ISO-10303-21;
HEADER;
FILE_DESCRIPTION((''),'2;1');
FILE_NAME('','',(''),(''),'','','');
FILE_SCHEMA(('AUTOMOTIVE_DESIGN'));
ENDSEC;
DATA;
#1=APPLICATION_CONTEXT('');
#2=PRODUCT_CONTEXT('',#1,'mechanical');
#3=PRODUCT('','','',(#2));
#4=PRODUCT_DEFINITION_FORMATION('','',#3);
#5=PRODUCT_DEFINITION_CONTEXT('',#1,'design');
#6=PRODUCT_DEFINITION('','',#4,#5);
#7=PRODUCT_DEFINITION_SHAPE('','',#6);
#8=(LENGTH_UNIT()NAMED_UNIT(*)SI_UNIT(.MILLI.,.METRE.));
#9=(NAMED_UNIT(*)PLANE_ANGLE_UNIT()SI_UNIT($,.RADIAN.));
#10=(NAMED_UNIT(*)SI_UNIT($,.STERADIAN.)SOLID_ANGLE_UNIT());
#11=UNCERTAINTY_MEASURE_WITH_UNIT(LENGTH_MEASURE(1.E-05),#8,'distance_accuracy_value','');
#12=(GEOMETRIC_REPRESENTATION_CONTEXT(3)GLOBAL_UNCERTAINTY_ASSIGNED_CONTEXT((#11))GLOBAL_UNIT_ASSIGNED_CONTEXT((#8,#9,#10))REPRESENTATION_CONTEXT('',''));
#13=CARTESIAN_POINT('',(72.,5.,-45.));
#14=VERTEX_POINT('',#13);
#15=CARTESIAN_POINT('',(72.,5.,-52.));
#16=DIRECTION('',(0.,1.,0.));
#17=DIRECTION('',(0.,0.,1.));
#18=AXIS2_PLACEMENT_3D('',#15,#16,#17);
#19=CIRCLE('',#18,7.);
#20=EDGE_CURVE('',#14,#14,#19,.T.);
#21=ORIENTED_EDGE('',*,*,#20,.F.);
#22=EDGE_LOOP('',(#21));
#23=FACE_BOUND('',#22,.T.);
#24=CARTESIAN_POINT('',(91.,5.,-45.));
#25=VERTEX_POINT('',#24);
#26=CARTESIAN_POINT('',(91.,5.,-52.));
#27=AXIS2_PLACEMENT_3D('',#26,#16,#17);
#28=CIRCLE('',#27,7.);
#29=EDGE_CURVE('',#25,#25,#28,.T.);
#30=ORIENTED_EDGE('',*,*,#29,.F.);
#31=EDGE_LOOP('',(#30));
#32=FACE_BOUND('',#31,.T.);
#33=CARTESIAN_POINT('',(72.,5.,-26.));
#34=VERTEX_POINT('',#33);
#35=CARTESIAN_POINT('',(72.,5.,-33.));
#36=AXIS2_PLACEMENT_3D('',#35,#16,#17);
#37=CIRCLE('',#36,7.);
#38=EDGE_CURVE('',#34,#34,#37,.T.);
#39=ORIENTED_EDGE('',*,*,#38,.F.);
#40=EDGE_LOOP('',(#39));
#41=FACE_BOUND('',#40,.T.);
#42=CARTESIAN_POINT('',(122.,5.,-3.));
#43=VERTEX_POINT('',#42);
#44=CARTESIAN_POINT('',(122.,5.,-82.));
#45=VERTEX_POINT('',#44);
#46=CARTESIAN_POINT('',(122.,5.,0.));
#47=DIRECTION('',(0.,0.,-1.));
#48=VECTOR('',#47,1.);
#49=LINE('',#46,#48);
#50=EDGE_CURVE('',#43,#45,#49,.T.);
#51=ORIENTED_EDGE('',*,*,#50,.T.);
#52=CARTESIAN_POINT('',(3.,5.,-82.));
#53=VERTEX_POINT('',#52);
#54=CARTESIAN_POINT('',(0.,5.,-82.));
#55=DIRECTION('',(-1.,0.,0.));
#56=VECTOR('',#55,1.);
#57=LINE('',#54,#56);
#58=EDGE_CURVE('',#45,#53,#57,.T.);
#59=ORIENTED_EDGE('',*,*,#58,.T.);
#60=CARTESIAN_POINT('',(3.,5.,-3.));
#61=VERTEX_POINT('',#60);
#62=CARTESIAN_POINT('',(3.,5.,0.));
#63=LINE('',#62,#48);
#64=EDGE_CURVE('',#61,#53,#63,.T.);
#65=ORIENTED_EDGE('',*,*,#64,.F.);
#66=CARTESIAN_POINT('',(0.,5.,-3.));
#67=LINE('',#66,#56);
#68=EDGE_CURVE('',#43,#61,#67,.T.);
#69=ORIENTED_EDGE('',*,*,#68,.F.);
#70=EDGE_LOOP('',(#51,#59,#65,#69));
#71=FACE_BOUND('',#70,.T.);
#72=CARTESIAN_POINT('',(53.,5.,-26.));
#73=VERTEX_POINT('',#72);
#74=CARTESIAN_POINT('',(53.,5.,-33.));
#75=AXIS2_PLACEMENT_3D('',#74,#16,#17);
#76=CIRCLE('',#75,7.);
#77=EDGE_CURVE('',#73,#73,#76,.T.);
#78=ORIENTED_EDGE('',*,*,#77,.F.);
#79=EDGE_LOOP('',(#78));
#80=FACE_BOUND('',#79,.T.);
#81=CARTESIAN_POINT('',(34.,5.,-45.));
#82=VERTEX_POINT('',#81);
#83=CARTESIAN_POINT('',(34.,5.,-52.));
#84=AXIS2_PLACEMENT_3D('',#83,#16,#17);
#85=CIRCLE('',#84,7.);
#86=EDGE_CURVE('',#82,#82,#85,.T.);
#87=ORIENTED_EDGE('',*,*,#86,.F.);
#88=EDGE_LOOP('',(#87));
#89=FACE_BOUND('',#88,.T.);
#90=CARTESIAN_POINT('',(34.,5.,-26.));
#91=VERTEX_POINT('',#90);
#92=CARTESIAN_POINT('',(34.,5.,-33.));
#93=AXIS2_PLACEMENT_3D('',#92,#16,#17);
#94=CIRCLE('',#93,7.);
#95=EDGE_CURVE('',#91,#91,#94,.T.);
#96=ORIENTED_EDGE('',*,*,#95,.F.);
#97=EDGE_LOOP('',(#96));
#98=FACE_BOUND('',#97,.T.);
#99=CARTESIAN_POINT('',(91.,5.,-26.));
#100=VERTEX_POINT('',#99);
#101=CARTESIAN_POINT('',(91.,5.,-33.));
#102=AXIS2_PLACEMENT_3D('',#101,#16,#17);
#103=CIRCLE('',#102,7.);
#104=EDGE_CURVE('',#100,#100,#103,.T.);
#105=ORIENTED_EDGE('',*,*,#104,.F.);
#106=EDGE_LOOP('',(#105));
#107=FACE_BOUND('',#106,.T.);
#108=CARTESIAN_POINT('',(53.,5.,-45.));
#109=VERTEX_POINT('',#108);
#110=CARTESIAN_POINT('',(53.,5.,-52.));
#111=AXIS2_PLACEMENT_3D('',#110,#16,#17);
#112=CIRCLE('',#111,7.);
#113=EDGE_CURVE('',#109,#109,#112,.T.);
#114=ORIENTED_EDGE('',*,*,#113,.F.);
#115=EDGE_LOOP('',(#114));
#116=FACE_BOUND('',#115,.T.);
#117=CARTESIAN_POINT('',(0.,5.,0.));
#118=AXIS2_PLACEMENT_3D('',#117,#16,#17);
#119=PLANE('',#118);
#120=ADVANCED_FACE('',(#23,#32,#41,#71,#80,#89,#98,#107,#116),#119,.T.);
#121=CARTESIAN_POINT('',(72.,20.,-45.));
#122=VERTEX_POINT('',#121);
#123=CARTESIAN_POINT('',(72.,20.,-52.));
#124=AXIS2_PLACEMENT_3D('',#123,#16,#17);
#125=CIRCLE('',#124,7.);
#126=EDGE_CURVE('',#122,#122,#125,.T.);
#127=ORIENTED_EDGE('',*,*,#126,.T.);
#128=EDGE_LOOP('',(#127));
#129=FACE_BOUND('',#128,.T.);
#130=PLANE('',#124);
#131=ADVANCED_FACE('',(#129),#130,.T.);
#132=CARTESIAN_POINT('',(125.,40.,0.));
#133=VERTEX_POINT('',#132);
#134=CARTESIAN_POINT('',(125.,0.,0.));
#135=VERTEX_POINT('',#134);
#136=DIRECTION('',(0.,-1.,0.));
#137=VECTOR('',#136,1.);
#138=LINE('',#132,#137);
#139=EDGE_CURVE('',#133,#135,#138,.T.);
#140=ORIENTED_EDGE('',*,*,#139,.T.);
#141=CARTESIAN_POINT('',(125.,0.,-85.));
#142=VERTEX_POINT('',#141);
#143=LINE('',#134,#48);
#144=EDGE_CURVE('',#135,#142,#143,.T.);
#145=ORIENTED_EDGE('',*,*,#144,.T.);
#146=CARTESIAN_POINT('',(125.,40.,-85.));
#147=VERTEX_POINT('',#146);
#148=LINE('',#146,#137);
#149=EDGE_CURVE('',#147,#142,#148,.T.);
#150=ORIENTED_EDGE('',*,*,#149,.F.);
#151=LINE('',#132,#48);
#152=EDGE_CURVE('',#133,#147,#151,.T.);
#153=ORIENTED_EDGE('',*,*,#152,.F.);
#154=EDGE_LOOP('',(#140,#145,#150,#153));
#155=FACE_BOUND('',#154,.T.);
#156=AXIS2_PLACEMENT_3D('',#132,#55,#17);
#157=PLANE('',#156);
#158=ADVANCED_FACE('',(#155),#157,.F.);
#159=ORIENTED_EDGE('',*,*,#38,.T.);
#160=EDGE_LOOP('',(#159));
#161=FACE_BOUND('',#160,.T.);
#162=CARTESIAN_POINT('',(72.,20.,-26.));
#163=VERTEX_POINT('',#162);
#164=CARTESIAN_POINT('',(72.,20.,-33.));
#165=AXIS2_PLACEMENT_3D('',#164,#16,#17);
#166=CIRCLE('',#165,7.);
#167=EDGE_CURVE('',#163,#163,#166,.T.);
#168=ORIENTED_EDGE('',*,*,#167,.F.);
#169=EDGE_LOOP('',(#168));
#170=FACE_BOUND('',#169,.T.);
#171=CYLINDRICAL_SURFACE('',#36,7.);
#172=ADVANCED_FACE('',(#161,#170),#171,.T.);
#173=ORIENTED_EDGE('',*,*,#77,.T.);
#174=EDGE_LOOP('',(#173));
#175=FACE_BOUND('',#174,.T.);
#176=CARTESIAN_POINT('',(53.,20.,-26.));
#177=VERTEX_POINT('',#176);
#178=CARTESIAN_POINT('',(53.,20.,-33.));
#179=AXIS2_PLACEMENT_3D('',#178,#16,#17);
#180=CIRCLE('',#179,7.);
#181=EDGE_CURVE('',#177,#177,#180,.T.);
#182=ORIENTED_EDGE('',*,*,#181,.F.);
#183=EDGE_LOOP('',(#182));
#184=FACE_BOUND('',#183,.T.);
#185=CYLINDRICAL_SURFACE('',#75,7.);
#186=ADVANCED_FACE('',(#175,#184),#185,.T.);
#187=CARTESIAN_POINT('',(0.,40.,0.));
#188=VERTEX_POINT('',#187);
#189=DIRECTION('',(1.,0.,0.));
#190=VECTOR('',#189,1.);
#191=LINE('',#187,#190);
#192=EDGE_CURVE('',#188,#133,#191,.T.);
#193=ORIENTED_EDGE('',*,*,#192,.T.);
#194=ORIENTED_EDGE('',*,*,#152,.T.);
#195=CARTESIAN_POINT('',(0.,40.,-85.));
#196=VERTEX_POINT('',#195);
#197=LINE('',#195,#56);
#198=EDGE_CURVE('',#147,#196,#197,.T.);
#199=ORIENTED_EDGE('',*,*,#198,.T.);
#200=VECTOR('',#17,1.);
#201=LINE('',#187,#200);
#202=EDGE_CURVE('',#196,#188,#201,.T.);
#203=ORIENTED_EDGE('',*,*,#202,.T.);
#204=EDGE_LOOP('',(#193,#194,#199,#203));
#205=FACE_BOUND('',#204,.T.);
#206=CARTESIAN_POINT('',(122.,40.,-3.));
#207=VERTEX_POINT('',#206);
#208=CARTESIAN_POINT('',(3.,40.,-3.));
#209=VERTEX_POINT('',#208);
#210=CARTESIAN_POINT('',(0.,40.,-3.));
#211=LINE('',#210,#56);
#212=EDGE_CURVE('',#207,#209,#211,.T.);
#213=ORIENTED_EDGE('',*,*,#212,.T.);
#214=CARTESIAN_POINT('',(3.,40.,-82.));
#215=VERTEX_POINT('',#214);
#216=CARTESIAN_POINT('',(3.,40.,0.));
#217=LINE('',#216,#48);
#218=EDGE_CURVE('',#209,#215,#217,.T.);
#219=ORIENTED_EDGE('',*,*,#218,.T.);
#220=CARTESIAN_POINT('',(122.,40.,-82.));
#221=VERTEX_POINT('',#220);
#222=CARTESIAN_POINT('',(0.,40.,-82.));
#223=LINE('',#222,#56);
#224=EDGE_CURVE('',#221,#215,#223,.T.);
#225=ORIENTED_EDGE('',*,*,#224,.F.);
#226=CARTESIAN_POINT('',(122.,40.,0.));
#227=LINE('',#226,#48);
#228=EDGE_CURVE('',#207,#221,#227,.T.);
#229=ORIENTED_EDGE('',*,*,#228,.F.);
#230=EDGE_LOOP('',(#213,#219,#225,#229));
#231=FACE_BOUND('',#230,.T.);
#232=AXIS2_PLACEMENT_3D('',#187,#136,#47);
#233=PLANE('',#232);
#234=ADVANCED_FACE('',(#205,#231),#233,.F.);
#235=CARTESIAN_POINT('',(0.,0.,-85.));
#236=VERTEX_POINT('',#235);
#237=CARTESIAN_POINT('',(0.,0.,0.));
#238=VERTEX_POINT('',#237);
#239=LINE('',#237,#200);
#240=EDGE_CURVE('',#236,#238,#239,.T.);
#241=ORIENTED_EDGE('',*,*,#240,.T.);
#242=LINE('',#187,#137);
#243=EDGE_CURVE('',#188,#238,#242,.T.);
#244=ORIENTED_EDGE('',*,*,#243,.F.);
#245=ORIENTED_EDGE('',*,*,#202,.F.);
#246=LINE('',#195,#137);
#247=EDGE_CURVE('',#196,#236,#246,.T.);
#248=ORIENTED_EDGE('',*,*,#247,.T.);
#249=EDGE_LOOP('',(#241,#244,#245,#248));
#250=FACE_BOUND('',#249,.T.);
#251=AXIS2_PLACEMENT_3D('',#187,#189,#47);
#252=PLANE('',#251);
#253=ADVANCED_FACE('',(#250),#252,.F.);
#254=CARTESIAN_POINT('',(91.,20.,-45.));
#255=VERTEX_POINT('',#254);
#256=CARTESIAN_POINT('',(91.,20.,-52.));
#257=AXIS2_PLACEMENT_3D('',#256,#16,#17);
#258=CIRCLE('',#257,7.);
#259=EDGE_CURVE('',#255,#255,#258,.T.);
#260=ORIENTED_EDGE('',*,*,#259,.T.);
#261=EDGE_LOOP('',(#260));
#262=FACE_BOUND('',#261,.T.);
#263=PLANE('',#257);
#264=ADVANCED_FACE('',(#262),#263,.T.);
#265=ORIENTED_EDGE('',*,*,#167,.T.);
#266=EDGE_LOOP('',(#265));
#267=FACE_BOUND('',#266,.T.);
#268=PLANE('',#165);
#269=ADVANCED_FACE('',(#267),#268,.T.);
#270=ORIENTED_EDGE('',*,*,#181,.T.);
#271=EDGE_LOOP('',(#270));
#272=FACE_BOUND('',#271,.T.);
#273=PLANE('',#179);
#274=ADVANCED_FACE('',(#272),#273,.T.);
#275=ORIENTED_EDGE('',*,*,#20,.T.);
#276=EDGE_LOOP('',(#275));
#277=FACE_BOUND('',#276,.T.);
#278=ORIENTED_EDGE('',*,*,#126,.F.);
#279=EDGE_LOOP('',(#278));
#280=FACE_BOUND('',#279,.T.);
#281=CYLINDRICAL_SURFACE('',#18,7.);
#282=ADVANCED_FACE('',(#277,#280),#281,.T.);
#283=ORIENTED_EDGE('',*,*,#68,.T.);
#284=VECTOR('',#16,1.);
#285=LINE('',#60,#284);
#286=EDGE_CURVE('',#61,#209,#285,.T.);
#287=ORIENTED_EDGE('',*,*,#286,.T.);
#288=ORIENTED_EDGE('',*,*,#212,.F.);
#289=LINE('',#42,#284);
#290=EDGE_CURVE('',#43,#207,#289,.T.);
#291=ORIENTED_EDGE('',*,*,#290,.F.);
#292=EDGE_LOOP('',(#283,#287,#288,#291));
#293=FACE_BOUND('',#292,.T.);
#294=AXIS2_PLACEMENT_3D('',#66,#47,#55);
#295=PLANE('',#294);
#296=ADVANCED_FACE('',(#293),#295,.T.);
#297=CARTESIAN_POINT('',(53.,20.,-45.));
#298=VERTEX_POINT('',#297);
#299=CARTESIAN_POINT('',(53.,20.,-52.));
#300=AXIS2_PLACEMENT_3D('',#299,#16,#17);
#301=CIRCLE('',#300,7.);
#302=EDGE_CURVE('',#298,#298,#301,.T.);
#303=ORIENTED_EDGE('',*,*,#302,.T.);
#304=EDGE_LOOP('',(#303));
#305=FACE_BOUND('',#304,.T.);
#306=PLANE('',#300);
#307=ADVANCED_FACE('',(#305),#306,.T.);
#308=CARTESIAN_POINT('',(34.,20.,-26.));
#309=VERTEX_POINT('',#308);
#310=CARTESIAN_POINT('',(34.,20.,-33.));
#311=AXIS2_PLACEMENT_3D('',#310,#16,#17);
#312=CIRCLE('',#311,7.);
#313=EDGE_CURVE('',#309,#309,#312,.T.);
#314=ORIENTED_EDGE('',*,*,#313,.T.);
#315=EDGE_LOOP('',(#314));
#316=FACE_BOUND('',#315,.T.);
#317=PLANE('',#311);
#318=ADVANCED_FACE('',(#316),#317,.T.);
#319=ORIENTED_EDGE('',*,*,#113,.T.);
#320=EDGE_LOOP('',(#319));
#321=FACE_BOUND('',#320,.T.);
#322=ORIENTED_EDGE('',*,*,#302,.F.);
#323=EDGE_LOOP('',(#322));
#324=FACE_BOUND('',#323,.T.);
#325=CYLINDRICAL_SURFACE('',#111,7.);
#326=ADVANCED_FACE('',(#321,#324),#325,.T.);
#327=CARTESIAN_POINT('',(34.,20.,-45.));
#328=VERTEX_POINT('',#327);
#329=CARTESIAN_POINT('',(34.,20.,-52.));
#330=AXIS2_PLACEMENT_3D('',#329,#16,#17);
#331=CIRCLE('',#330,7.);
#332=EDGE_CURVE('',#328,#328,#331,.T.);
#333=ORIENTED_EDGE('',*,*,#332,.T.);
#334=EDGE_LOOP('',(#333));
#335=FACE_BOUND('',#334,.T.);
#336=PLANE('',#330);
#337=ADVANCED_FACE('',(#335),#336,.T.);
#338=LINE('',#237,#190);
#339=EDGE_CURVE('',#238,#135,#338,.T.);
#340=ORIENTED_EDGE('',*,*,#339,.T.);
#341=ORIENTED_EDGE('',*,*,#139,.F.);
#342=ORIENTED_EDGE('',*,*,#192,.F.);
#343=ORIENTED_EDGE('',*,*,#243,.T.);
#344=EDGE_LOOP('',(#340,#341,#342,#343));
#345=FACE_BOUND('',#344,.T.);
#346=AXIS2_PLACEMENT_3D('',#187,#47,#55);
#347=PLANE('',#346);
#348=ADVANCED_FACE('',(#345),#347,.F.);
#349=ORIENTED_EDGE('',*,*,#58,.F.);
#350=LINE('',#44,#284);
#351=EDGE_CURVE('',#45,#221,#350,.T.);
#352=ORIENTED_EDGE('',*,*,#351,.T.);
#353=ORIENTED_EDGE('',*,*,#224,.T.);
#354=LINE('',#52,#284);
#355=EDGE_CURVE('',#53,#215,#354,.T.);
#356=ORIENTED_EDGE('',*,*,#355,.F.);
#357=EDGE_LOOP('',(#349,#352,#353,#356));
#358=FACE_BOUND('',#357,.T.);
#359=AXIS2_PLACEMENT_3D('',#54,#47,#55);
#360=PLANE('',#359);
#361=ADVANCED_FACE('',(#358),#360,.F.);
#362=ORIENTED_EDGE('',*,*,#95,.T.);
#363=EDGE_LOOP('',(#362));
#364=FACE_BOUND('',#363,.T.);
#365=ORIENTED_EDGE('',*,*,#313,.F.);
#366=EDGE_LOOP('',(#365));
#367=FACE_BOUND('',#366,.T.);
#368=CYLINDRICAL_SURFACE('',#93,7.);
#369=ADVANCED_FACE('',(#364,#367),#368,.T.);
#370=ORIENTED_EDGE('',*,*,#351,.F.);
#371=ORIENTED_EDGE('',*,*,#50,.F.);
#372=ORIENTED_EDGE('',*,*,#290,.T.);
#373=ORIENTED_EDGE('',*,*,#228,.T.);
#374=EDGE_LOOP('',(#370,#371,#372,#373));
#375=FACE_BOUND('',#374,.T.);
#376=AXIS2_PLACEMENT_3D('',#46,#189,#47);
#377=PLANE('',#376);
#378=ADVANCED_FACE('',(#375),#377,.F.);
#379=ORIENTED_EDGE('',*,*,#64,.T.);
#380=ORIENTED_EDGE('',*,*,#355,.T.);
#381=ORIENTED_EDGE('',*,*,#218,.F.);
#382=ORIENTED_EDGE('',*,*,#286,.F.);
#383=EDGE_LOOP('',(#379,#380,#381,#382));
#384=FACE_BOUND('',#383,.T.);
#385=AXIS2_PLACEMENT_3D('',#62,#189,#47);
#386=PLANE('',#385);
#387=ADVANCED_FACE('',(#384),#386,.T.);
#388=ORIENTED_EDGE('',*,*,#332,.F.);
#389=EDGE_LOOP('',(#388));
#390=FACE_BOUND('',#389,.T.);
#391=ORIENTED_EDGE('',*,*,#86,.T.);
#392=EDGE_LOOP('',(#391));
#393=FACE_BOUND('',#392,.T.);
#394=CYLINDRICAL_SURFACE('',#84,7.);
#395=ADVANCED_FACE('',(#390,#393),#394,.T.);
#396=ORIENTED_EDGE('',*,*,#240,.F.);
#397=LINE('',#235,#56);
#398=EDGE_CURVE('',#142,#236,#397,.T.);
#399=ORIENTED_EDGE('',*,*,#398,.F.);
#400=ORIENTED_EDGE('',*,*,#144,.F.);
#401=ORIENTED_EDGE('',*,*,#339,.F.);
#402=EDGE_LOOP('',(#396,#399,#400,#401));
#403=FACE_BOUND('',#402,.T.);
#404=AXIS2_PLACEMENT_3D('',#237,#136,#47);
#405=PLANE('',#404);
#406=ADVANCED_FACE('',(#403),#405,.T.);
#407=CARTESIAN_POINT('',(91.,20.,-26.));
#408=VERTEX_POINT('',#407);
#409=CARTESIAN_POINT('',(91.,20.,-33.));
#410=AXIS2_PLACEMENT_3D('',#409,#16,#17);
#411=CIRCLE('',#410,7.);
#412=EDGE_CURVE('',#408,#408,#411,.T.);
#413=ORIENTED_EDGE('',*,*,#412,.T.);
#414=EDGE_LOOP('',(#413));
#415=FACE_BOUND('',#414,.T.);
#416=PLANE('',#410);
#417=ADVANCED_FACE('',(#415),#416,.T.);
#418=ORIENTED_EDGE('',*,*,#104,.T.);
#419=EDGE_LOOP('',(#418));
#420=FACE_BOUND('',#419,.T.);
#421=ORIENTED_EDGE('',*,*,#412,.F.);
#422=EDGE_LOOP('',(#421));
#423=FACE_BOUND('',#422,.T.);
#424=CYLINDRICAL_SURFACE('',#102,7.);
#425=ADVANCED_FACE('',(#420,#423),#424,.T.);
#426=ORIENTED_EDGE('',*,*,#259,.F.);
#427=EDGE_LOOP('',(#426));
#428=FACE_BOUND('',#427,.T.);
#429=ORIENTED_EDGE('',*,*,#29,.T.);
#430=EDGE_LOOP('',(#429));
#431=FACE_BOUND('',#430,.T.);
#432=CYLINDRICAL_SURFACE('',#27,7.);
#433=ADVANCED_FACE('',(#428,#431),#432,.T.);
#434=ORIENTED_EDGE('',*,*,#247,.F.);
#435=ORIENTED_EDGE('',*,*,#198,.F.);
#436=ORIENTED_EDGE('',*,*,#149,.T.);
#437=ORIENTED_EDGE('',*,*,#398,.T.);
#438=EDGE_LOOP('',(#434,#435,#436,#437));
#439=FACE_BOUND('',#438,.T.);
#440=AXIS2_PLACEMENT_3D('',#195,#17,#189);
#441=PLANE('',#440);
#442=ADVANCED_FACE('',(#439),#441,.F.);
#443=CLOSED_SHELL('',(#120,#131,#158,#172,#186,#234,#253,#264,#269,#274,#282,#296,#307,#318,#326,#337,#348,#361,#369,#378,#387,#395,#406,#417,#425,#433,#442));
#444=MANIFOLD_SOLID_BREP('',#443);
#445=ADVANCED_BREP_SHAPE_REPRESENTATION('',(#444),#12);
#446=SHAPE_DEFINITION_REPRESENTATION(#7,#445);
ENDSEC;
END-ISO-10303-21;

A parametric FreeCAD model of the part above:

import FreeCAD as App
import Part
import Sketcher
from FreeCAD import Vector
Q = App.Units.Quantity

doc = App.newDocument("Part")
body = doc.addObject("PartDesign::Body", "Body")

# Sketch on XZ plane
sketch1 = doc.addObject("Sketcher::SketchObject", "Sketch")
body.addObject(sketch1)
sketch1.AttachmentSupport = (doc.XZ_Plane, [""])
sketch1.MapMode = "FlatFace"
sketch1.addGeometry([
    Part.LineSegment(Vector(0, -85, 0), Vector(0, 0, 0)),
    Part.LineSegment(Vector(0, 0, 0), Vector(125, 0, 0)),
    Part.LineSegment(Vector(125, 0, 0), Vector(125, -85, 0)),
    Part.LineSegment(Vector(125, -85, 0), Vector(0, -85, 0)),
], False)
sketch1.addConstraint([
    Sketcher.Constraint("Coincident", 0, 2, 1, 1),
    Sketcher.Constraint("Coincident", 1, 2, 2, 1),
    Sketcher.Constraint("Coincident", 2, 2, 3, 1),
    Sketcher.Constraint("Coincident", 3, 2, 0, 1),
    Sketcher.Constraint("Vertical", 0),
    Sketcher.Constraint("Horizontal", 1),
    Sketcher.Constraint("Vertical", 2),
    Sketcher.Constraint("Horizontal", 3),
    Sketcher.Constraint("Coincident", 0, 2, -1, 1),
    Sketcher.Constraint("DistanceX", 1, 1, 1, 2, Q("125 mm")),
    Sketcher.Constraint("DistanceY", 0, 1, 0, 2, Q("85 mm")),
])
pad1 = doc.addObject("PartDesign::Pad", "Pad")
body.addObject(pad1)
pad1.Profile = sketch1
pad1.Length = 40
pad1.Reversed = True

# Sketch on XZ plane
sketch2 = doc.addObject("Sketcher::SketchObject", "Sketch001")
body.addObject(sketch2)
sketch2.AttachmentSupport = (doc.XZ_Plane, [""])
sketch2.MapMode = "FlatFace"
sketch2.AttachmentOffset = App.Placement(Vector(0, 0, -40), App.Rotation())
sketch2.addGeometry([
    Part.LineSegment(Vector(3, -82, 0), Vector(3, -3, 0)),  # 0
    Part.LineSegment(Vector(3, -3, 0), Vector(122, -3, 0)),  # 1
    Part.LineSegment(Vector(122, -3, 0), Vector(122, -82, 0)),  # 2
    Part.LineSegment(Vector(122, -82, 0), Vector(3, -82, 0)),  # 3
    Part.Circle(Vector(34, -33, 0), Vector(0, 0, 1), 7),  # 4
    Part.Circle(Vector(53, -33, 0), Vector(0, 0, 1), 7),  # 5
    Part.Circle(Vector(72, -33, 0), Vector(0, 0, 1), 7),  # 6
    Part.Circle(Vector(91, -33, 0), Vector(0, 0, 1), 7),  # 7
    Part.Circle(Vector(34, -52, 0), Vector(0, 0, 1), 7),  # 8
    Part.Circle(Vector(53, -52, 0), Vector(0, 0, 1), 7),  # 9
    Part.Circle(Vector(72, -52, 0), Vector(0, 0, 1), 7),  # 10
    Part.Circle(Vector(91, -52, 0), Vector(0, 0, 1), 7),  # 11
], False)
sketch2.addConstraint([
    Sketcher.Constraint("Coincident", 0, 2, 1, 1),
    Sketcher.Constraint("Coincident", 1, 2, 2, 1),
    Sketcher.Constraint("Coincident", 2, 2, 3, 1),
    Sketcher.Constraint("Coincident", 3, 2, 0, 1),
    Sketcher.Constraint("Vertical", 0),
    Sketcher.Constraint("Horizontal", 1),
    Sketcher.Constraint("Vertical", 2),
    Sketcher.Constraint("Horizontal", 3),
    Sketcher.Constraint("Equal", 4, 5),
    Sketcher.Constraint("Equal", 5, 6),
    Sketcher.Constraint("Equal", 6, 7),
    Sketcher.Constraint("Equal", 7, 8),
    Sketcher.Constraint("Equal", 8, 9),
    Sketcher.Constraint("Equal", 9, 10),
    Sketcher.Constraint("Equal", 10, 11),
    Sketcher.Constraint("Horizontal", 4, 3, 5, 3),
    Sketcher.Constraint("Horizontal", 5, 3, 6, 3),
    Sketcher.Constraint("Horizontal", 6, 3, 7, 3),
    Sketcher.Constraint("Horizontal", 8, 3, 9, 3),
    Sketcher.Constraint("Horizontal", 9, 3, 10, 3),
    Sketcher.Constraint("Horizontal", 10, 3, 11, 3),
    Sketcher.Constraint("Vertical", 4, 3, 8, 3),
    Sketcher.Constraint("Vertical", 5, 3, 9, 3),
    Sketcher.Constraint("Vertical", 6, 3, 10, 3),
    Sketcher.Constraint("Vertical", 7, 3, 11, 3),
    Sketcher.Constraint("Diameter", 4, Q("14 mm")),
    Sketcher.Constraint("DistanceX", 1, 1, 1, 2, Q("119 mm")),
    Sketcher.Constraint("DistanceY", 0, 1, 0, 2, Q("79 mm")),
    Sketcher.Constraint("DistanceX", -1, 1, 4, 3, Q("34 mm")),
    Sketcher.Constraint("DistanceY", 4, 3, -1, 1, Q("33 mm")),
    Sketcher.Constraint("DistanceX", -1, 1, 5, 3, Q("53 mm")),
    Sketcher.Constraint("DistanceX", -1, 1, 6, 3, Q("72 mm")),
    Sketcher.Constraint("DistanceX", -1, 1, 7, 3, Q("91 mm")),
    Sketcher.Constraint("DistanceY", 8, 3, -1, 1, Q("52 mm")),
    Sketcher.Constraint("DistanceX", -1, 1, 0, 2, Q("3 mm")),
    Sketcher.Constraint("DistanceY", 0, 2, -1, 1, Q("3 mm")),
])
pocket1 = doc.addObject("PartDesign::Pocket", "Pocket")
body.addObject(pocket1)
pocket1.Profile = sketch2
pocket1.Length = 35
pocket1.Reversed = True

# Sketch on XZ plane
sketch3 = doc.addObject("Sketcher::SketchObject", "Sketch002")
body.addObject(sketch3)
sketch3.AttachmentSupport = (doc.XZ_Plane, [""])
sketch3.MapMode = "FlatFace"
sketch3.AttachmentOffset = App.Placement(Vector(0, 0, -40), App.Rotation())
sketch3.addGeometry([
    Part.Circle(Vector(34, -33, 0), Vector(0, 0, 1), 7),  # 0
    Part.Circle(Vector(53, -33, 0), Vector(0, 0, 1), 7),  # 1
    Part.Circle(Vector(91, -33, 0), Vector(0, 0, 1), 7),  # 2
    Part.Circle(Vector(72, -33, 0), Vector(0, 0, 1), 7),  # 3
    Part.Circle(Vector(91, -52, 0), Vector(0, 0, 1), 7),  # 4
    Part.Circle(Vector(72, -52, 0), Vector(0, 0, 1), 7),  # 5
    Part.Circle(Vector(53, -52, 0), Vector(0, 0, 1), 7),  # 6
    Part.Circle(Vector(34, -52, 0), Vector(0, 0, 1), 7),  # 7
], False)
sketch3.addConstraint([
    Sketcher.Constraint("Equal", 0, 1),
    Sketcher.Constraint("Equal", 1, 2),
    Sketcher.Constraint("Equal", 2, 3),
    Sketcher.Constraint("Equal", 3, 4),
    Sketcher.Constraint("Equal", 4, 5),
    Sketcher.Constraint("Equal", 5, 6),
    Sketcher.Constraint("Equal", 6, 7),
    Sketcher.Constraint("Horizontal", 0, 3, 1, 3),
    Sketcher.Constraint("Horizontal", 1, 3, 2, 3),
    Sketcher.Constraint("Horizontal", 2, 3, 3, 3),
    Sketcher.Constraint("Horizontal", 4, 3, 5, 3),
    Sketcher.Constraint("Horizontal", 5, 3, 6, 3),
    Sketcher.Constraint("Horizontal", 6, 3, 7, 3),
    Sketcher.Constraint("Vertical", 2, 3, 4, 3),
    Sketcher.Constraint("Vertical", 3, 3, 5, 3),
    Sketcher.Constraint("Vertical", 1, 3, 6, 3),
    Sketcher.Constraint("Vertical", 0, 3, 7, 3),
    Sketcher.Constraint("Diameter", 0, Q("14 mm")),
    Sketcher.Constraint("DistanceX", -1, 1, 0, 3, Q("34 mm")),
    Sketcher.Constraint("DistanceY", 0, 3, -1, 1, Q("33 mm")),
    Sketcher.Constraint("DistanceX", -1, 1, 1, 3, Q("53 mm")),
    Sketcher.Constraint("DistanceX", -1, 1, 2, 3, Q("91 mm")),
    Sketcher.Constraint("DistanceX", -1, 1, 3, 3, Q("72 mm")),
    Sketcher.Constraint("DistanceY", 4, 3, -1, 1, Q("52 mm")),
])
pocket2 = doc.addObject("PartDesign::Pocket", "Pocket001")
body.addObject(pocket2)
pocket2.Profile = sketch3
pocket2.Length = 20
pocket2.Reversed = True

doc.recompute()
